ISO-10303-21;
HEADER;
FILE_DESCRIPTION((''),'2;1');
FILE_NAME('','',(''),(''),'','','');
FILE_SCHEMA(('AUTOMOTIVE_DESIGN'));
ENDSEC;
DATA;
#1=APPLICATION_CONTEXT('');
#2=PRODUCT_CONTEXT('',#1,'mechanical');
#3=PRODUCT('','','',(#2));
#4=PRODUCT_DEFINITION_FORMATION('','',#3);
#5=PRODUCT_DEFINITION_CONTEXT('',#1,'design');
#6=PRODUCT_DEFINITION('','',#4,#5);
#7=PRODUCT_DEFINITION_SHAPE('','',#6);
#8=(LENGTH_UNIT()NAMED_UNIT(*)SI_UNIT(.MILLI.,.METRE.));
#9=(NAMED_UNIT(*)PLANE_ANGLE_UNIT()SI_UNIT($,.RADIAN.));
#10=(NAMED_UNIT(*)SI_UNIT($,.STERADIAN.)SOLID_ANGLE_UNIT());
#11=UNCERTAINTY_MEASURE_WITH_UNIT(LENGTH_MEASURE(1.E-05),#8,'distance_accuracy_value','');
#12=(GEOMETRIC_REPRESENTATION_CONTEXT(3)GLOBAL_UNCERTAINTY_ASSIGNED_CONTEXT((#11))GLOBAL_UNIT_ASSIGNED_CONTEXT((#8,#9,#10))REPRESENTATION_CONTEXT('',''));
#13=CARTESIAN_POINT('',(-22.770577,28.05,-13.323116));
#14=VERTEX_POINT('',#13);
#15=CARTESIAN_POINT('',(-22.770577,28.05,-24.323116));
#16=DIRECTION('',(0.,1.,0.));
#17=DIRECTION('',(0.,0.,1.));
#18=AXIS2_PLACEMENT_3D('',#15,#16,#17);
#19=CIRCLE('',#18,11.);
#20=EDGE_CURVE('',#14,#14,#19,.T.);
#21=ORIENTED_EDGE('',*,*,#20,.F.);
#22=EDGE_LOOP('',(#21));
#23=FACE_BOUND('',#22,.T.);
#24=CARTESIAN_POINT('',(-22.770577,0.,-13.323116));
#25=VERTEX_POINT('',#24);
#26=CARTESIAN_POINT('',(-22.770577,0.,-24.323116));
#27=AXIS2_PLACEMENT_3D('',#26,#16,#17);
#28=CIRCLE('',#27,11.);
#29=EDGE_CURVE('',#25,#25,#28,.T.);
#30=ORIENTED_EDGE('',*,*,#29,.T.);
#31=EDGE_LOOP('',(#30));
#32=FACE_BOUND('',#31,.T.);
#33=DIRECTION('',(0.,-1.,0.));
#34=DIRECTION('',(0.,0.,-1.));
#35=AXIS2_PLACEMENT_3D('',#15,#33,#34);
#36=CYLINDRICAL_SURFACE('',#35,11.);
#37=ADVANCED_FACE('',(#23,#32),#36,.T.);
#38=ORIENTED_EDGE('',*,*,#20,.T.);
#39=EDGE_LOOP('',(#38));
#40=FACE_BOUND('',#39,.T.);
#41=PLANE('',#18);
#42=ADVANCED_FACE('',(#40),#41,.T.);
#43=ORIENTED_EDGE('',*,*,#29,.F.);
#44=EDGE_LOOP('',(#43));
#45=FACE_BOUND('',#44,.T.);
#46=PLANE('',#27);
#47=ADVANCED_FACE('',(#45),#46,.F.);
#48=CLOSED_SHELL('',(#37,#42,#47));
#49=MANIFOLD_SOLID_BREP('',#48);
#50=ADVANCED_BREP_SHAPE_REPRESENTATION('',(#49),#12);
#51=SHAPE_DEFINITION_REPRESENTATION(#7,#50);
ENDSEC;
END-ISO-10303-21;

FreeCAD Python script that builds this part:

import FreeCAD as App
import Part
import Sketcher
from FreeCAD import Vector

doc = App.newDocument("Part")
body = doc.addObject("PartDesign::Body", "Body")

sketch1 = body.newObject("Sketcher::SketchObject", "Sketch")
sketch1.AttachmentSupport = (doc.getObject("XZ_Plane"), [""])
sketch1.MapMode = "FlatFace"
sketch1.addGeometry(Part.Circle(Vector(-23, -24, 0), Vector(0, 0, 1), 11), False)
sketch1.addConstraint([
    Sketcher.Constraint("Diameter", 0, 22.0),
    Sketcher.Constraint("DistanceX", 0, 3, -1, 1, 22.770577),
    Sketcher.Constraint("DistanceY", 0, 3, -1, 1, 24.323116),
])
pad1 = body.newObject("PartDesign::Pad", "Pad")
pad1.Profile = sketch1
pad1.Length = 28.05
pad1.Reversed = True

doc.recompute()
